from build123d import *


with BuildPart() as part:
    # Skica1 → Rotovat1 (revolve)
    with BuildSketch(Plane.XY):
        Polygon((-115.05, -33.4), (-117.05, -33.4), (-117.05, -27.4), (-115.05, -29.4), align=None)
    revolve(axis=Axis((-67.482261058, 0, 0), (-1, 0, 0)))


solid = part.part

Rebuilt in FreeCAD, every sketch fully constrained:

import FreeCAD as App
import Part
import Sketcher
from FreeCAD import Vector

doc = App.newDocument("Part")
body = doc.addObject("PartDesign::Body", "Body")

sketch1 = body.newObject("Sketcher::SketchObject", "Sketch")
sketch1.AttachmentSupport = (doc.getObject("XY_Plane"), [""])
sketch1.MapMode = "FlatFace"
sketch1.addGeometry([
    Part.LineSegment(Vector(-117, -33.4, 0), Vector(-115, -33.4, 0)),
    Part.LineSegment(Vector(-115, -33.4, 0), Vector(-115, -29.4, 0)),
    Part.LineSegment(Vector(-115, -29.4, 0), Vector(-117, -27.4, 0)),
    Part.LineSegment(Vector(-117, -27.4, 0), Vector(-117, -33.4, 0)),
], False)
sketch1.addConstraint([
    Sketcher.Constraint("Coincident", 0, 2, 1, 1),
    Sketcher.Constraint("Coincident", 1, 2, 2, 1),
    Sketcher.Constraint("Coincident", 2, 2, 3, 1),
    Sketcher.Constraint("Coincident", 3, 2, 0, 1),
    Sketcher.Constraint("Horizontal", 0),
    Sketcher.Constraint("Vertical", 1),
    Sketcher.Constraint("Vertical", 3),
    Sketcher.Constraint("DistanceX", 0, 1, 0, 2, 2.0),
    Sketcher.Constraint("DistanceY", 1, 1, 1, 2, 4.0),
    Sketcher.Constraint("DistanceY", 3, 2, 3, 1, 6.0),
    Sketcher.Constraint("DistanceY", 0, 2, -1, 1, 33.4),
    Sketcher.Constraint("DistanceX", 0, 2, -1, 1, 115.05),
])
revolution = body.newObject("PartDesign::Revolution", "Revolution")
revolution.Profile = sketch1
revolution.ReferenceAxis = (sketch1, ["H_Axis"])
revolution.Angle = 360

doc.recompute()
